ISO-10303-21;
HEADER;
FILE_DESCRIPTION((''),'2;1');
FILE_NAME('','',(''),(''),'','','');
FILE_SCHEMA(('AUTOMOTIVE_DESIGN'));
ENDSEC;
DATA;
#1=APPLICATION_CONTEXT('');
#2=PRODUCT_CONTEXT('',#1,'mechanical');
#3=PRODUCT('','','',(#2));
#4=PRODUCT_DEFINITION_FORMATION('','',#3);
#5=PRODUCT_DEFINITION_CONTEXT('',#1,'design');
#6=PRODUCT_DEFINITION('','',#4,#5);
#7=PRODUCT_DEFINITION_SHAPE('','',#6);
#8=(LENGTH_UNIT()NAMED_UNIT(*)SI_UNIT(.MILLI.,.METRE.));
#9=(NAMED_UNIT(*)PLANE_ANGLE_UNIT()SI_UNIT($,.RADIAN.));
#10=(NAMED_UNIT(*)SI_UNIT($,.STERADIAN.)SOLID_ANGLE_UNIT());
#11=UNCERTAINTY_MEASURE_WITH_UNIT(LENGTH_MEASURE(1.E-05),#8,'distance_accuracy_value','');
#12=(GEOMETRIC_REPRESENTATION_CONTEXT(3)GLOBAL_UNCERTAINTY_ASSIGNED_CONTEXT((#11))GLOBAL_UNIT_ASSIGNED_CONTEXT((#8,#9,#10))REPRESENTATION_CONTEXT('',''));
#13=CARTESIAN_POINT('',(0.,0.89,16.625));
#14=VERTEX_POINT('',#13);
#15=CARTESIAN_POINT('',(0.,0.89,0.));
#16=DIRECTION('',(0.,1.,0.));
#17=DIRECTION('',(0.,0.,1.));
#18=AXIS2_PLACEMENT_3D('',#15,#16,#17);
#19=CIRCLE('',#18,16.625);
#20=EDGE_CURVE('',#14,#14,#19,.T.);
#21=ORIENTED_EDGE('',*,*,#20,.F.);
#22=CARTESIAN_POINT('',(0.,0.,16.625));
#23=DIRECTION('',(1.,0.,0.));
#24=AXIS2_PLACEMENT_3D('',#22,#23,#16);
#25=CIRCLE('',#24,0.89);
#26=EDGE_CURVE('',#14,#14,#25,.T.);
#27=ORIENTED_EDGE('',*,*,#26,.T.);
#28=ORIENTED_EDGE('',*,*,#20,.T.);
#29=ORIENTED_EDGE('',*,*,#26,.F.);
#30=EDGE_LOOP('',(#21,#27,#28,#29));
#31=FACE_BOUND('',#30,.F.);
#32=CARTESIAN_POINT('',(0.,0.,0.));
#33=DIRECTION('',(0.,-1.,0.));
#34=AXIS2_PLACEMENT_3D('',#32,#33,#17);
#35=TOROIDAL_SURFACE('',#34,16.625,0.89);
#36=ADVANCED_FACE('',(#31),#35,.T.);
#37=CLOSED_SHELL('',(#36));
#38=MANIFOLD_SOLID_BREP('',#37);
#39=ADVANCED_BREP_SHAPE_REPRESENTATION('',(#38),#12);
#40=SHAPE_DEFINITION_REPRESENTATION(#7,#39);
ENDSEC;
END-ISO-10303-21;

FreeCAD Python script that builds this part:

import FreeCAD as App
import Part
import Sketcher

V = App.Vector

doc = App.newDocument("Part")
params = doc.addObject("Spreadsheet::Sheet", "Params")
for row, (alias, value) in enumerate([
    ("sketch1_diameter", "1.78 mm"),
    ("revolution_angle", "360 deg"),
], start=1):
    params.set(f"A{row}", alias)
    params.set(f"B{row}", "=" + value)
    params.setAlias(f"B{row}", alias)

body = doc.addObject("PartDesign::Body", "Body")

# Sketch on YZ plane
sketch1 = body.newObject("Sketcher::SketchObject", "Sketch")
sketch1.AttachmentSupport = (doc.getObject("YZ_Plane"), [""])
sketch1.MapMode = "FlatFace"
sketch1.addGeometry(Part.Circle(V(0, 16.6, 0), V(0, 0, 1), 0.9), False)
sketch1.addConstraint(Sketcher.Constraint("PointOnObject", 0, 3, -2))
sketch1.addConstraint(Sketcher.Constraint("Diameter", 0, 1.78))
sketch1.addConstraint(Sketcher.Constraint("DistanceY", -1, 1, 0, 3, 16.625))
sketch1.setExpression("Constraints[1]", "Params.sketch1_diameter")
revolution = body.newObject("PartDesign::Revolution", "Revolution")
revolution.Profile = sketch1
revolution.ReferenceAxis = (sketch1, ["H_Axis"])
revolution.setExpression("Angle", "Params.revolution_angle")

doc.recompute()
